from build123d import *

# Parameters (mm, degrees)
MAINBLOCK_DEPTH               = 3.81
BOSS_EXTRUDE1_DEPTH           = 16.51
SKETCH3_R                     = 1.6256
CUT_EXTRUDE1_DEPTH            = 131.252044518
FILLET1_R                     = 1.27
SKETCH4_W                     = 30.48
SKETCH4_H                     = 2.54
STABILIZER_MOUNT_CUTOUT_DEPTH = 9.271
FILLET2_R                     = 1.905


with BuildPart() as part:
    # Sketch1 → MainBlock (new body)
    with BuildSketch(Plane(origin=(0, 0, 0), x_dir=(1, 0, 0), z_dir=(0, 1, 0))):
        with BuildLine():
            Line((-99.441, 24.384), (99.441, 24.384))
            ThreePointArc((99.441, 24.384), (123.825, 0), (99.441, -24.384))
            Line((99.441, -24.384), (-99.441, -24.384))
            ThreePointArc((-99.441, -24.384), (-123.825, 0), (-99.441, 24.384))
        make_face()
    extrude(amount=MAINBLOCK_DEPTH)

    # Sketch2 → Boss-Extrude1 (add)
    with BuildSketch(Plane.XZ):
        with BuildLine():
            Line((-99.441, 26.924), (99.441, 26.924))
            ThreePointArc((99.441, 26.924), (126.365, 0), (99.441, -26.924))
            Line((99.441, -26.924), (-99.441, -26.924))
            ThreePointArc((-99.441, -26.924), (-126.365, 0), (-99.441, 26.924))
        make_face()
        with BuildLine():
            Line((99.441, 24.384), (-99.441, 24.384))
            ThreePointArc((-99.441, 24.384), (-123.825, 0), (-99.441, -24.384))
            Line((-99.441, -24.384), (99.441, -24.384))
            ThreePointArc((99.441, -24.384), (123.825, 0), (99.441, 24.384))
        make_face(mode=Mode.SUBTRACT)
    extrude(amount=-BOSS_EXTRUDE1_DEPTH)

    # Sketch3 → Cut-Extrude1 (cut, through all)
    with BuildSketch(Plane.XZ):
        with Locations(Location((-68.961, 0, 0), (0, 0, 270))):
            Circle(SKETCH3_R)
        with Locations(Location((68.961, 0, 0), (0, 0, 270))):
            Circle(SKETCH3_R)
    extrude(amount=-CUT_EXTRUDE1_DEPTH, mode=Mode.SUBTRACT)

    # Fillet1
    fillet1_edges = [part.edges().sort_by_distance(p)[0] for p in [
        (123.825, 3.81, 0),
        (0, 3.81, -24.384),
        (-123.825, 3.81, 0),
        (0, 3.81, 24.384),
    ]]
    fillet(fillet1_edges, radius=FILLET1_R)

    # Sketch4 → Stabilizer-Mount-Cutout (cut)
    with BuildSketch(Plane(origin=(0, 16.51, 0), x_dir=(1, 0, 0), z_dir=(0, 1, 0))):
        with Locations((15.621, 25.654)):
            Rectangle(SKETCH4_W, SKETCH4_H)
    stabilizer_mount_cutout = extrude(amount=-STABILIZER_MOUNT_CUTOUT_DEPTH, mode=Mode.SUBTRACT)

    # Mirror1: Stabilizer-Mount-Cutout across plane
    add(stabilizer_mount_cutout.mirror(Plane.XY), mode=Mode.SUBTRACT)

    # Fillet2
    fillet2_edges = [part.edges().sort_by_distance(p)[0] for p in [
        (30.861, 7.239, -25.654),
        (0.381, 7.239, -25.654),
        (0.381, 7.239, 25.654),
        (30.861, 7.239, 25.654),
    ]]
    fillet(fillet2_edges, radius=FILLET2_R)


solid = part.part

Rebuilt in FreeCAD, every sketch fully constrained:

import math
import FreeCAD as App
import Part
import Sketcher

V = App.Vector
Q = App.Units.Quantity


def edges_at(feature, points):
    """Names of the edges that pass closest to the given points."""
    edges = feature.Shape.Edges
    near = lambda p: min(range(len(edges)), key=lambda i: edges[i].distToShape(Part.Vertex(*p))[0])
    return sorted({f"Edge{near(p) + 1}" for p in points})


def add_polygon(sketch, points):
    """Adds a closed chain of lines whose ends are joined by coincident constraints."""
    first, n = sketch.GeometryCount, len(points)
    for a, b in zip(points, points[1:] + points[:1]):
        sketch.addGeometry(Part.LineSegment(App.Vector(*a, 0), App.Vector(*b, 0)), False)
    for i in range(n):
        sketch.addConstraint(Sketcher.Constraint("Coincident", first + i, 2, first + (i + 1) % n, 1))

doc = App.newDocument("Part")
params = doc.addObject("Spreadsheet::Sheet", "Params")
for row, (alias, value) in enumerate([
    ("sketch1_radius", "0.96 in"),
    ("sketch1_width", "7.83 in"),
    ("pad1_length", "0.15 in"),
    ("sketch2_radius", "1.06 in"),
    ("sketch2_radius2", "0.96 in"),
    ("sketch2_width", "7.83 in"),
    ("pad2_length", "0.65 in"),
    ("sketch3_diameter", "0.128 in"),
    ("fillet_radius", "0.05 in"),
    ("sketch4_width", "1.2 in"),
    ("sketch4_height", "0.1 in"),
    ("pocket2_length", "0.365 in"),
    ("fillet2_radius", "0.075 in"),
], start=1):
    params.set(f"A{row}", alias)
    params.set(f"B{row}", "=" + value)
    params.setAlias(f"B{row}", alias)

body = doc.addObject("PartDesign::Body", "Body")

sketch1 = body.newObject("Sketcher::SketchObject", "Sketch")
sketch1.AttachmentSupport = (doc.getObject("XZ_Plane"), [""])
sketch1.MapMode = "FlatFace"
sketch1.addGeometry([
    Part.LineSegment(V(99, -24, 0), V(-99, -24, 0)),
    Part.ArcOfCircle(Part.Circle(V(-99, 0, 0), V(0, 0, 1), 24), math.radians(90), math.radians(270)),
    Part.LineSegment(V(-99, 24, 0), V(99, 24, 0)),
    Part.ArcOfCircle(Part.Circle(V(99, 0, 0), V(0, 0, 1), 24), math.radians(-90), math.radians(90)),
], False)
sketch1.addConstraint([
    Sketcher.Constraint("Tangent", 0, 2, 1, 2),
    Sketcher.Constraint("Tangent", 1, 1, 2, 1),
    Sketcher.Constraint("Tangent", 2, 2, 3, 2),
    Sketcher.Constraint("Tangent", 3, 1, 0, 1),
    Sketcher.Constraint("Horizontal", 0),
    Sketcher.Constraint("Horizontal", 2),
    Sketcher.Constraint("Symmetric", 1, 3, 3, 3, -1, 1),
    Sketcher.Constraint("Radius", 1, Q("0.96 in")),
    Sketcher.Constraint("DistanceX", 0, 2, 0, 1, Q("7.83 in")),
])
sketch1.setExpression("Constraints[7]", "Params.sketch1_radius")
sketch1.setExpression("Constraints[8]", "Params.sketch1_width")
pad1 = body.newObject("PartDesign::Pad", "Pad")
pad1.Profile = sketch1
pad1.setExpression("Length", "Params.pad1_length")
pad1.Reversed = True

sketch2 = body.newObject("Sketcher::SketchObject", "Sketch001")
sketch2.AttachmentSupport = (doc.getObject("XZ_Plane"), [""])
sketch2.MapMode = "FlatFace"
sketch2.addGeometry([
    Part.LineSegment(V(99, 27, 0), V(-99, 27, 0)),
    Part.ArcOfCircle(Part.Circle(V(-99, 0, 0), V(0, 0, 1), 27), math.radians(90), math.radians(270)),
    Part.LineSegment(V(-99, -27, 0), V(99, -27, 0)),
    Part.ArcOfCircle(Part.Circle(V(99, 0, 0), V(0, 0, 1), 27), math.radians(-90), math.radians(90)),
    Part.ArcOfCircle(Part.Circle(V(99, 0, 0), V(0, 0, 1), 24), math.radians(-90), math.radians(90)),
    Part.LineSegment(V(99, -24, 0), V(-99, -24, 0)),
    Part.ArcOfCircle(Part.Circle(V(-99, 0, 0), V(0, 0, 1), 24), math.radians(90), math.radians(270)),
    Part.LineSegment(V(-99, 24, 0), V(99, 24, 0)),
], False)
sketch2.addConstraint([
    Sketcher.Constraint("Tangent", 0, 2, 1, 1),
    Sketcher.Constraint("Tangent", 1, 2, 2, 1),
    Sketcher.Constraint("Tangent", 2, 2, 3, 1),
    Sketcher.Constraint("Tangent", 3, 2, 0, 1),
    Sketcher.Constraint("Tangent", 4, 1, 5, 1),
    Sketcher.Constraint("Tangent", 5, 2, 6, 2),
    Sketcher.Constraint("Tangent", 6, 1, 7, 1),
    Sketcher.Constraint("Tangent", 7, 2, 4, 2),
    Sketcher.Constraint("Horizontal", 0),
    Sketcher.Constraint("Horizontal", 2),
    Sketcher.Constraint("Horizontal", 5),
    Sketcher.Constraint("Horizontal", 7),
    Sketcher.Constraint("Coincident", 4, 3, 3, 3),
    Sketcher.Constraint("Symmetric", 1, 3, 3, 3, -1, 1),
    Sketcher.Constraint("Vertical", 6, 3, 0, 2),
    Sketcher.Constraint("Radius", 1, Q("1.06 in")),
    Sketcher.Constraint("Radius", 4, Q("0.96 in")),
    Sketcher.Constraint("DistanceX", 0, 2, 0, 1, Q("7.83 in")),
])
sketch2.setExpression("Constraints[15]", "Params.sketch2_radius")
sketch2.setExpression("Constraints[16]", "Params.sketch2_radius2")
sketch2.setExpression("Constraints[17]", "Params.sketch2_width")
pad2 = body.newObject("PartDesign::Pad", "Pad001")
pad2.Profile = sketch2
pad2.setExpression("Length", "Params.pad2_length")
pad2.Reversed = True

sketch3 = body.newObject("Sketcher::SketchObject", "Sketch002")
sketch3.AttachmentSupport = (doc.getObject("XZ_Plane"), [""])
sketch3.MapMode = "FlatFace"
sketch3.addGeometry([
    Part.Circle(V(-69, 0, 0), V(0, 0, 1), 1.6),
    Part.Circle(V(69, 0, 0), V(0, 0, 1), 1.6),
], False)
sketch3.addConstraint([
    Sketcher.Constraint("Equal", 0, 1),
    Sketcher.Constraint("Symmetric", 0, 3, 1, 3, -1, 1),
    Sketcher.Constraint("PointOnObject", 0, 3, -1),
    Sketcher.Constraint("Diameter", 0, Q("0.128 in")),
    Sketcher.Constraint("DistanceX", 0, 3, 1, 3, Q("5.43 in")),
])
sketch3.setExpression("Constraints[3]", "Params.sketch3_diameter")
pocket1 = body.newObject("PartDesign::Pocket", "Pocket")
pocket1.Profile = sketch3
pocket1.Type = "ThroughAll"
doc.recompute()

fillet = body.newObject("PartDesign::Fillet", "Fillet")
fillet.Base = (pocket1, edges_at(pocket1, [
    (123.825, 3.81, 0),
    (0, 3.81, -24.384),
    (-123.825, 3.81, 0),
    (0, 3.81, 24.384),
]))
fillet.setExpression("Radius", "Params.fillet_radius")

sketch4 = body.newObject("Sketcher::SketchObject", "Sketch003")
sketch4.AttachmentSupport = (doc.getObject("XZ_Plane"), [""])
sketch4.MapMode = "FlatFace"
sketch4.AttachmentOffset = App.Placement(V(0, 0, -0.65 * 25.4), App.Rotation())
add_polygon(sketch4, [(0.4, -26.9), (0.4, -24.4), (30.9, -24.4), (30.9, -26.9)])
sketch4.addConstraint([
    Sketcher.Constraint("Vertical", 0),
    Sketcher.Constraint("Horizontal", 1),
    Sketcher.Constraint("Vertical", 2),
    Sketcher.Constraint("Horizontal", 3),
    Sketcher.Constraint("DistanceX", 1, 1, 1, 2, Q("1.2 in")),
    Sketcher.Constraint("DistanceY", 0, 1, 0, 2, Q("0.1 in")),
    Sketcher.Constraint("DistanceY", 0, 2, -1, 1, Q("0.96 in")),
    Sketcher.Constraint("DistanceX", -1, 1, 0, 2, Q("0.015 in")),
])
sketch4.setExpression("Constraints[8]", "Params.sketch4_width")
sketch4.setExpression("Constraints[9]", "Params.sketch4_height")
pocket2 = body.newObject("PartDesign::Pocket", "Pocket001")
pocket2.Profile = sketch4
pocket2.setExpression("Length", "Params.pocket2_length")
pocket2.Reversed = True
doc.recompute()

mirrored = body.newObject("PartDesign::Mirrored", "Mirrored")
mirrored.Originals = [pocket2]
mirrored.MirrorPlane = (doc.getObject("XY_Plane"), [""])
body.Tip = mirrored
doc.recompute()

fillet2 = body.newObject("PartDesign::Fillet", "Fillet001")
fillet2.Base = (mirrored, edges_at(mirrored, [
    (30.861, 7.239, -25.654),
    (0.381, 7.239, -25.654),
    (0.381, 7.239, 25.654),
    (30.861, 7.239, 25.654),
]))
fillet2.setExpression("Radius", "Params.fillet2_radius")

doc.recompute()
